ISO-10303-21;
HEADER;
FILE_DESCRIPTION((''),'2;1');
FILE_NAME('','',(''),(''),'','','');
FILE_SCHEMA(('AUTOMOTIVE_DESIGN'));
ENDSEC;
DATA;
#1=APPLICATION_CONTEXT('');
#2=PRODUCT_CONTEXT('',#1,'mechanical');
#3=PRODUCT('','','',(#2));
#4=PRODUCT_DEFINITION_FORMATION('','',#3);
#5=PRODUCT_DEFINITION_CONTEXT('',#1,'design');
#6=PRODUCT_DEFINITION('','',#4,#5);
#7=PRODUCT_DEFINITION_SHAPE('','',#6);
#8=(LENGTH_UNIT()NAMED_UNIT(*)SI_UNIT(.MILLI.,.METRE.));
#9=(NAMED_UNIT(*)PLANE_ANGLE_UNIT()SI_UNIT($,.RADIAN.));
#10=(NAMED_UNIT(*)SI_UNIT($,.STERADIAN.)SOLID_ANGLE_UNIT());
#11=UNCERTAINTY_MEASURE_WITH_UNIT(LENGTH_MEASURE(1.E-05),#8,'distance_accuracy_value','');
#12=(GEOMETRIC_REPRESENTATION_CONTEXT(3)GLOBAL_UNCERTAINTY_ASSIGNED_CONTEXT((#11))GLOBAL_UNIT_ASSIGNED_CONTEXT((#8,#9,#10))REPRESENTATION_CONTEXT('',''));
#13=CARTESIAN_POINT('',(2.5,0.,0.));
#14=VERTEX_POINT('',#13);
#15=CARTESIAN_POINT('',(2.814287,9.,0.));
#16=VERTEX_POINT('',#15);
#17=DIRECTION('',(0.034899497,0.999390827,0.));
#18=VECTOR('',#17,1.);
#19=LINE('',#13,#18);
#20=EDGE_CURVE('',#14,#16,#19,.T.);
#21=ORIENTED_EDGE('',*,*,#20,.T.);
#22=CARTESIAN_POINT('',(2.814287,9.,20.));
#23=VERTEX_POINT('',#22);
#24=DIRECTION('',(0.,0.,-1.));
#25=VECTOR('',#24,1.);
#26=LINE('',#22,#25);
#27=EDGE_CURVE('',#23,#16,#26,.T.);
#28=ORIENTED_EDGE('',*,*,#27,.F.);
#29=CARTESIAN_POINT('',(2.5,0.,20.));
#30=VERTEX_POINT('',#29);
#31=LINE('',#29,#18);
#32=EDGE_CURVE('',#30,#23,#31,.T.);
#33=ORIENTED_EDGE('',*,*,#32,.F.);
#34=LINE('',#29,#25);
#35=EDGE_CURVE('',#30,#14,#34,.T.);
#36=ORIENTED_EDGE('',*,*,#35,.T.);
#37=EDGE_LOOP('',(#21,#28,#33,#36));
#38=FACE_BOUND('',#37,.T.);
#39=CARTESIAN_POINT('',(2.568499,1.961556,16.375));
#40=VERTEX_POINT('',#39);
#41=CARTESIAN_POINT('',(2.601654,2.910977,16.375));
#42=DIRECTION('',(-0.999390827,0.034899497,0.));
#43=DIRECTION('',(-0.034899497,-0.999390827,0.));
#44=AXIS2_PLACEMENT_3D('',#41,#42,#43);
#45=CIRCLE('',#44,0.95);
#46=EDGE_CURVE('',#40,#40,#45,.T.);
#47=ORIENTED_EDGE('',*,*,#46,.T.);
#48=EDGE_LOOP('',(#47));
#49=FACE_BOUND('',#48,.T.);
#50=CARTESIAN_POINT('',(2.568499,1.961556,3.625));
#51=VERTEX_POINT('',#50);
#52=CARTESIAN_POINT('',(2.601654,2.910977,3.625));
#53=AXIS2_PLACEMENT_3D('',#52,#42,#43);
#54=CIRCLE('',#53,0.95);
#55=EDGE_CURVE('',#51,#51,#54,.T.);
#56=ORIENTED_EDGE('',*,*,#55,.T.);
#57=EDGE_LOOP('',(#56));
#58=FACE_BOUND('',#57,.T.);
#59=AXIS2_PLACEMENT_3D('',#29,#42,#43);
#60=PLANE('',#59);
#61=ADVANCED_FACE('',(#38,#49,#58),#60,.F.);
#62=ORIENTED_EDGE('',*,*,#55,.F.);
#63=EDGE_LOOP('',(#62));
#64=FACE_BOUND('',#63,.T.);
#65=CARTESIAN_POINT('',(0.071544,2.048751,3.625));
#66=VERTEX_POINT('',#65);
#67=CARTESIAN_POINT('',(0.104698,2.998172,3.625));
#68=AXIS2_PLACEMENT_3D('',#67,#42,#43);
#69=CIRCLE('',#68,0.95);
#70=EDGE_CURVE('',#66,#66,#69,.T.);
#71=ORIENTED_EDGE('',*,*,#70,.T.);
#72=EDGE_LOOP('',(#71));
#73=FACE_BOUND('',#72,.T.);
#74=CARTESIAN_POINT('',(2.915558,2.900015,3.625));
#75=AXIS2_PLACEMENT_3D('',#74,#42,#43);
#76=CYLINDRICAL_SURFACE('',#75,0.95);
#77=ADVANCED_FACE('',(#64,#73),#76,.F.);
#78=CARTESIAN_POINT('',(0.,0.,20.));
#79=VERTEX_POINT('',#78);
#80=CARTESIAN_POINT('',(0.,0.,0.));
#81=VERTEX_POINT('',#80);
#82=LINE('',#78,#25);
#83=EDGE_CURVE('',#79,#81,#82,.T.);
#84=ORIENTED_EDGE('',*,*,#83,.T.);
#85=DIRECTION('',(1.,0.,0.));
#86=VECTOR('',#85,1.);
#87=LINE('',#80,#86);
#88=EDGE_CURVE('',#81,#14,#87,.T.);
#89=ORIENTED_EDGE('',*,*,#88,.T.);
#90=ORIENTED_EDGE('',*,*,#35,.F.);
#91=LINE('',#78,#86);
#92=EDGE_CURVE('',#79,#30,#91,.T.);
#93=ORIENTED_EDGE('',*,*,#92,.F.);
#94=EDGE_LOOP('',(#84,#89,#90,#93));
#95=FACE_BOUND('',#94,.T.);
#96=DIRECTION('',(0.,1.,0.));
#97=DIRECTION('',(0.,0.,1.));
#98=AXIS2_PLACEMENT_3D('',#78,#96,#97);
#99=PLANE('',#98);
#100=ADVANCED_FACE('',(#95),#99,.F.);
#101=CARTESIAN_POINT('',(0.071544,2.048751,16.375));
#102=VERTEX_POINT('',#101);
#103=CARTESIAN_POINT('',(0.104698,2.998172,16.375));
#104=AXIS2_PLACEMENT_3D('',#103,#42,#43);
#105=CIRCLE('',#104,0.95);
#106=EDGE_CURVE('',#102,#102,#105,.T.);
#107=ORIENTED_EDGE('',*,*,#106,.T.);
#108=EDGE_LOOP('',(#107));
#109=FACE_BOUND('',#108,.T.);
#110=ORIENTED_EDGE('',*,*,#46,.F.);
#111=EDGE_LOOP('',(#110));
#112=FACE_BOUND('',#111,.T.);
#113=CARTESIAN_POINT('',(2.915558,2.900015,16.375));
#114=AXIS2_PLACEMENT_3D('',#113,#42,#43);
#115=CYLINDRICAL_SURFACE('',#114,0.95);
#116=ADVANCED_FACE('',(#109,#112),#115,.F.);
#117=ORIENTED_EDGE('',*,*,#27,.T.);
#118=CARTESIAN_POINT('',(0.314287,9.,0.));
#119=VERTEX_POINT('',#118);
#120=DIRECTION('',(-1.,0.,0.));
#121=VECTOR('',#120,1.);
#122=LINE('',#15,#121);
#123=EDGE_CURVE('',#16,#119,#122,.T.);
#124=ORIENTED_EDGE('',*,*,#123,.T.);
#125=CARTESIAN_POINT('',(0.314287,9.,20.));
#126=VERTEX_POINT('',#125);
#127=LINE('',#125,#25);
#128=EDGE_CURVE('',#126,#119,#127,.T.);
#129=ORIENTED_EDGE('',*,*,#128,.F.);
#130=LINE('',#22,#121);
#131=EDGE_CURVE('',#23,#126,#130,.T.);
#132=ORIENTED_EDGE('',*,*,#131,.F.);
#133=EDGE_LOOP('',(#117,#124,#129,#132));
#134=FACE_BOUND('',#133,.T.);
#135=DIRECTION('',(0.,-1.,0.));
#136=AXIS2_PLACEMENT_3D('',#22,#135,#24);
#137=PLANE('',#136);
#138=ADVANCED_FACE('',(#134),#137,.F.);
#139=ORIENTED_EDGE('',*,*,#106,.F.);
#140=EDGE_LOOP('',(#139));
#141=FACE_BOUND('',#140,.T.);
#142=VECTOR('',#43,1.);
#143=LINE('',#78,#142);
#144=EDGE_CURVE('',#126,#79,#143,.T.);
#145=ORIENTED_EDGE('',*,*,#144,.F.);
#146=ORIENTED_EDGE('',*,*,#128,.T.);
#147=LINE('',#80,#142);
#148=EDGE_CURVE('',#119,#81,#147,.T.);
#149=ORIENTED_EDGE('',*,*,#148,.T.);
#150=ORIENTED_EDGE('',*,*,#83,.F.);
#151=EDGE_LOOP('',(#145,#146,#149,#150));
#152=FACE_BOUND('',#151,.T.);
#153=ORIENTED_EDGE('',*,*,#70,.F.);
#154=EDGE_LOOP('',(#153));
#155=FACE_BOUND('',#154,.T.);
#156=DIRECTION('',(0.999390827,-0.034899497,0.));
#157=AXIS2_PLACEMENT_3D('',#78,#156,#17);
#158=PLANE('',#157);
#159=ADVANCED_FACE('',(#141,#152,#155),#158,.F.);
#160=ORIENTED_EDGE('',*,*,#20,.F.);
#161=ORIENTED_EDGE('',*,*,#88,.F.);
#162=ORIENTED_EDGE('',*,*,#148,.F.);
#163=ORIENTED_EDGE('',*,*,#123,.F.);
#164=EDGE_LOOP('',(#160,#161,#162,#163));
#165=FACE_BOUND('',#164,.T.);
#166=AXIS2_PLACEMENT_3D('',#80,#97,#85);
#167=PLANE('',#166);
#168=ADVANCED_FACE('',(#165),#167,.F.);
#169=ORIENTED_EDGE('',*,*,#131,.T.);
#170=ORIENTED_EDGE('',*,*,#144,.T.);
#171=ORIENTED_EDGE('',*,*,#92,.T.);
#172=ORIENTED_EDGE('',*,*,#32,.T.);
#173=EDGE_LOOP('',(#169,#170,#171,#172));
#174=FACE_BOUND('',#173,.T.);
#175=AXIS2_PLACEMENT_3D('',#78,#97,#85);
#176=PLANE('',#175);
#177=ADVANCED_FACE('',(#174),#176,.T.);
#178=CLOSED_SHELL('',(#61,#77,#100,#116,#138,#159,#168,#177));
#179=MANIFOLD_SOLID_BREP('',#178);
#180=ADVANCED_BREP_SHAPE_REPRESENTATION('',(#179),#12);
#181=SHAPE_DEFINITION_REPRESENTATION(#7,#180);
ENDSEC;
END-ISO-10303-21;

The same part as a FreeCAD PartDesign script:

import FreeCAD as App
import Part
import Sketcher
Q = App.Units.Quantity

doc = App.newDocument("Part")
body = doc.addObject("PartDesign::Body", "Body")

sketch1 = body.newObject("Sketcher::SketchObject", "Sketch")
sketch1.AttachmentSupport = (doc.getObject("XY_Plane"), [""])
sketch1.MapMode = "FlatFace"
sketch1.addGeometry([
    Part.LineSegment(App.Vector(0, 0, 0), App.Vector(2.5, 0, 0)),
    Part.LineSegment(App.Vector(2.5, 0, 0), App.Vector(2.8, 9, 0)),
    Part.LineSegment(App.Vector(2.8, 9, 0), App.Vector(0.3, 9, 0)),
    Part.LineSegment(App.Vector(0.3, 9, 0), App.Vector(0, 0, 0)),
], False)
sketch1.addConstraint([
    Sketcher.Constraint("Coincident", 0, 2, 1, 1),
    Sketcher.Constraint("Coincident", 1, 2, 2, 1),
    Sketcher.Constraint("Coincident", 2, 2, 3, 1),
    Sketcher.Constraint("Coincident", 3, 2, 0, 1),
    Sketcher.Constraint("Horizontal", 0),
    Sketcher.Constraint("Horizontal", 2),
    Sketcher.Constraint("Coincident", 3, 2, -1, 1),
    Sketcher.Constraint("Parallel", 1, 3),
    Sketcher.Constraint("Angle", 1, Q("88 deg")),
    Sketcher.Constraint("DistanceX", 0, 1, 0, 2, Q("2.5 mm")),
    Sketcher.Constraint("DistanceY", -1, 1, 1, 2, Q("9 mm")),
])
pad1 = body.newObject("PartDesign::Pad", "Pad")
pad1.Profile = sketch1
pad1.Length = 20

sketch2 = body.newObject("Sketcher::SketchObject", "Sketch001")
sketch2.Placement = App.Placement(App.Vector(0, 0, 0), App.Rotation(App.Vector(0, 0, 1), App.Vector(0.034899497, 0.999390827, 0), App.Vector(-0.999390827, 0.034899497, 0), "ZXY"))
sketch2.addGeometry([
    Part.Circle(App.Vector(3.6, 3, 0), App.Vector(0, 0, 1), 0.9),
    Part.Circle(App.Vector(16.4, 3, 0), App.Vector(0, 0, 1), 0.9),
], False)
sketch2.addConstraint([
    Sketcher.Constraint("Equal", 0, 1),
    Sketcher.Constraint("Horizontal", 0, 3, 1, 3),
    Sketcher.Constraint("Diameter", 0, Q("1.9 mm")),
    Sketcher.Constraint("DistanceY", -1, 1, 0, 3, Q("3 mm")),
    Sketcher.Constraint("DistanceX", 0, 3, 1, 3, Q("12.75 mm")),
    Sketcher.Constraint("DistanceX", -1, 1, 0, 3, Q("3.625 mm")),
])
pocket1 = body.newObject("PartDesign::Pocket", "Pocket")
pocket1.Profile = sketch2
pocket1.Type = "ThroughAll"

doc.recompute()
